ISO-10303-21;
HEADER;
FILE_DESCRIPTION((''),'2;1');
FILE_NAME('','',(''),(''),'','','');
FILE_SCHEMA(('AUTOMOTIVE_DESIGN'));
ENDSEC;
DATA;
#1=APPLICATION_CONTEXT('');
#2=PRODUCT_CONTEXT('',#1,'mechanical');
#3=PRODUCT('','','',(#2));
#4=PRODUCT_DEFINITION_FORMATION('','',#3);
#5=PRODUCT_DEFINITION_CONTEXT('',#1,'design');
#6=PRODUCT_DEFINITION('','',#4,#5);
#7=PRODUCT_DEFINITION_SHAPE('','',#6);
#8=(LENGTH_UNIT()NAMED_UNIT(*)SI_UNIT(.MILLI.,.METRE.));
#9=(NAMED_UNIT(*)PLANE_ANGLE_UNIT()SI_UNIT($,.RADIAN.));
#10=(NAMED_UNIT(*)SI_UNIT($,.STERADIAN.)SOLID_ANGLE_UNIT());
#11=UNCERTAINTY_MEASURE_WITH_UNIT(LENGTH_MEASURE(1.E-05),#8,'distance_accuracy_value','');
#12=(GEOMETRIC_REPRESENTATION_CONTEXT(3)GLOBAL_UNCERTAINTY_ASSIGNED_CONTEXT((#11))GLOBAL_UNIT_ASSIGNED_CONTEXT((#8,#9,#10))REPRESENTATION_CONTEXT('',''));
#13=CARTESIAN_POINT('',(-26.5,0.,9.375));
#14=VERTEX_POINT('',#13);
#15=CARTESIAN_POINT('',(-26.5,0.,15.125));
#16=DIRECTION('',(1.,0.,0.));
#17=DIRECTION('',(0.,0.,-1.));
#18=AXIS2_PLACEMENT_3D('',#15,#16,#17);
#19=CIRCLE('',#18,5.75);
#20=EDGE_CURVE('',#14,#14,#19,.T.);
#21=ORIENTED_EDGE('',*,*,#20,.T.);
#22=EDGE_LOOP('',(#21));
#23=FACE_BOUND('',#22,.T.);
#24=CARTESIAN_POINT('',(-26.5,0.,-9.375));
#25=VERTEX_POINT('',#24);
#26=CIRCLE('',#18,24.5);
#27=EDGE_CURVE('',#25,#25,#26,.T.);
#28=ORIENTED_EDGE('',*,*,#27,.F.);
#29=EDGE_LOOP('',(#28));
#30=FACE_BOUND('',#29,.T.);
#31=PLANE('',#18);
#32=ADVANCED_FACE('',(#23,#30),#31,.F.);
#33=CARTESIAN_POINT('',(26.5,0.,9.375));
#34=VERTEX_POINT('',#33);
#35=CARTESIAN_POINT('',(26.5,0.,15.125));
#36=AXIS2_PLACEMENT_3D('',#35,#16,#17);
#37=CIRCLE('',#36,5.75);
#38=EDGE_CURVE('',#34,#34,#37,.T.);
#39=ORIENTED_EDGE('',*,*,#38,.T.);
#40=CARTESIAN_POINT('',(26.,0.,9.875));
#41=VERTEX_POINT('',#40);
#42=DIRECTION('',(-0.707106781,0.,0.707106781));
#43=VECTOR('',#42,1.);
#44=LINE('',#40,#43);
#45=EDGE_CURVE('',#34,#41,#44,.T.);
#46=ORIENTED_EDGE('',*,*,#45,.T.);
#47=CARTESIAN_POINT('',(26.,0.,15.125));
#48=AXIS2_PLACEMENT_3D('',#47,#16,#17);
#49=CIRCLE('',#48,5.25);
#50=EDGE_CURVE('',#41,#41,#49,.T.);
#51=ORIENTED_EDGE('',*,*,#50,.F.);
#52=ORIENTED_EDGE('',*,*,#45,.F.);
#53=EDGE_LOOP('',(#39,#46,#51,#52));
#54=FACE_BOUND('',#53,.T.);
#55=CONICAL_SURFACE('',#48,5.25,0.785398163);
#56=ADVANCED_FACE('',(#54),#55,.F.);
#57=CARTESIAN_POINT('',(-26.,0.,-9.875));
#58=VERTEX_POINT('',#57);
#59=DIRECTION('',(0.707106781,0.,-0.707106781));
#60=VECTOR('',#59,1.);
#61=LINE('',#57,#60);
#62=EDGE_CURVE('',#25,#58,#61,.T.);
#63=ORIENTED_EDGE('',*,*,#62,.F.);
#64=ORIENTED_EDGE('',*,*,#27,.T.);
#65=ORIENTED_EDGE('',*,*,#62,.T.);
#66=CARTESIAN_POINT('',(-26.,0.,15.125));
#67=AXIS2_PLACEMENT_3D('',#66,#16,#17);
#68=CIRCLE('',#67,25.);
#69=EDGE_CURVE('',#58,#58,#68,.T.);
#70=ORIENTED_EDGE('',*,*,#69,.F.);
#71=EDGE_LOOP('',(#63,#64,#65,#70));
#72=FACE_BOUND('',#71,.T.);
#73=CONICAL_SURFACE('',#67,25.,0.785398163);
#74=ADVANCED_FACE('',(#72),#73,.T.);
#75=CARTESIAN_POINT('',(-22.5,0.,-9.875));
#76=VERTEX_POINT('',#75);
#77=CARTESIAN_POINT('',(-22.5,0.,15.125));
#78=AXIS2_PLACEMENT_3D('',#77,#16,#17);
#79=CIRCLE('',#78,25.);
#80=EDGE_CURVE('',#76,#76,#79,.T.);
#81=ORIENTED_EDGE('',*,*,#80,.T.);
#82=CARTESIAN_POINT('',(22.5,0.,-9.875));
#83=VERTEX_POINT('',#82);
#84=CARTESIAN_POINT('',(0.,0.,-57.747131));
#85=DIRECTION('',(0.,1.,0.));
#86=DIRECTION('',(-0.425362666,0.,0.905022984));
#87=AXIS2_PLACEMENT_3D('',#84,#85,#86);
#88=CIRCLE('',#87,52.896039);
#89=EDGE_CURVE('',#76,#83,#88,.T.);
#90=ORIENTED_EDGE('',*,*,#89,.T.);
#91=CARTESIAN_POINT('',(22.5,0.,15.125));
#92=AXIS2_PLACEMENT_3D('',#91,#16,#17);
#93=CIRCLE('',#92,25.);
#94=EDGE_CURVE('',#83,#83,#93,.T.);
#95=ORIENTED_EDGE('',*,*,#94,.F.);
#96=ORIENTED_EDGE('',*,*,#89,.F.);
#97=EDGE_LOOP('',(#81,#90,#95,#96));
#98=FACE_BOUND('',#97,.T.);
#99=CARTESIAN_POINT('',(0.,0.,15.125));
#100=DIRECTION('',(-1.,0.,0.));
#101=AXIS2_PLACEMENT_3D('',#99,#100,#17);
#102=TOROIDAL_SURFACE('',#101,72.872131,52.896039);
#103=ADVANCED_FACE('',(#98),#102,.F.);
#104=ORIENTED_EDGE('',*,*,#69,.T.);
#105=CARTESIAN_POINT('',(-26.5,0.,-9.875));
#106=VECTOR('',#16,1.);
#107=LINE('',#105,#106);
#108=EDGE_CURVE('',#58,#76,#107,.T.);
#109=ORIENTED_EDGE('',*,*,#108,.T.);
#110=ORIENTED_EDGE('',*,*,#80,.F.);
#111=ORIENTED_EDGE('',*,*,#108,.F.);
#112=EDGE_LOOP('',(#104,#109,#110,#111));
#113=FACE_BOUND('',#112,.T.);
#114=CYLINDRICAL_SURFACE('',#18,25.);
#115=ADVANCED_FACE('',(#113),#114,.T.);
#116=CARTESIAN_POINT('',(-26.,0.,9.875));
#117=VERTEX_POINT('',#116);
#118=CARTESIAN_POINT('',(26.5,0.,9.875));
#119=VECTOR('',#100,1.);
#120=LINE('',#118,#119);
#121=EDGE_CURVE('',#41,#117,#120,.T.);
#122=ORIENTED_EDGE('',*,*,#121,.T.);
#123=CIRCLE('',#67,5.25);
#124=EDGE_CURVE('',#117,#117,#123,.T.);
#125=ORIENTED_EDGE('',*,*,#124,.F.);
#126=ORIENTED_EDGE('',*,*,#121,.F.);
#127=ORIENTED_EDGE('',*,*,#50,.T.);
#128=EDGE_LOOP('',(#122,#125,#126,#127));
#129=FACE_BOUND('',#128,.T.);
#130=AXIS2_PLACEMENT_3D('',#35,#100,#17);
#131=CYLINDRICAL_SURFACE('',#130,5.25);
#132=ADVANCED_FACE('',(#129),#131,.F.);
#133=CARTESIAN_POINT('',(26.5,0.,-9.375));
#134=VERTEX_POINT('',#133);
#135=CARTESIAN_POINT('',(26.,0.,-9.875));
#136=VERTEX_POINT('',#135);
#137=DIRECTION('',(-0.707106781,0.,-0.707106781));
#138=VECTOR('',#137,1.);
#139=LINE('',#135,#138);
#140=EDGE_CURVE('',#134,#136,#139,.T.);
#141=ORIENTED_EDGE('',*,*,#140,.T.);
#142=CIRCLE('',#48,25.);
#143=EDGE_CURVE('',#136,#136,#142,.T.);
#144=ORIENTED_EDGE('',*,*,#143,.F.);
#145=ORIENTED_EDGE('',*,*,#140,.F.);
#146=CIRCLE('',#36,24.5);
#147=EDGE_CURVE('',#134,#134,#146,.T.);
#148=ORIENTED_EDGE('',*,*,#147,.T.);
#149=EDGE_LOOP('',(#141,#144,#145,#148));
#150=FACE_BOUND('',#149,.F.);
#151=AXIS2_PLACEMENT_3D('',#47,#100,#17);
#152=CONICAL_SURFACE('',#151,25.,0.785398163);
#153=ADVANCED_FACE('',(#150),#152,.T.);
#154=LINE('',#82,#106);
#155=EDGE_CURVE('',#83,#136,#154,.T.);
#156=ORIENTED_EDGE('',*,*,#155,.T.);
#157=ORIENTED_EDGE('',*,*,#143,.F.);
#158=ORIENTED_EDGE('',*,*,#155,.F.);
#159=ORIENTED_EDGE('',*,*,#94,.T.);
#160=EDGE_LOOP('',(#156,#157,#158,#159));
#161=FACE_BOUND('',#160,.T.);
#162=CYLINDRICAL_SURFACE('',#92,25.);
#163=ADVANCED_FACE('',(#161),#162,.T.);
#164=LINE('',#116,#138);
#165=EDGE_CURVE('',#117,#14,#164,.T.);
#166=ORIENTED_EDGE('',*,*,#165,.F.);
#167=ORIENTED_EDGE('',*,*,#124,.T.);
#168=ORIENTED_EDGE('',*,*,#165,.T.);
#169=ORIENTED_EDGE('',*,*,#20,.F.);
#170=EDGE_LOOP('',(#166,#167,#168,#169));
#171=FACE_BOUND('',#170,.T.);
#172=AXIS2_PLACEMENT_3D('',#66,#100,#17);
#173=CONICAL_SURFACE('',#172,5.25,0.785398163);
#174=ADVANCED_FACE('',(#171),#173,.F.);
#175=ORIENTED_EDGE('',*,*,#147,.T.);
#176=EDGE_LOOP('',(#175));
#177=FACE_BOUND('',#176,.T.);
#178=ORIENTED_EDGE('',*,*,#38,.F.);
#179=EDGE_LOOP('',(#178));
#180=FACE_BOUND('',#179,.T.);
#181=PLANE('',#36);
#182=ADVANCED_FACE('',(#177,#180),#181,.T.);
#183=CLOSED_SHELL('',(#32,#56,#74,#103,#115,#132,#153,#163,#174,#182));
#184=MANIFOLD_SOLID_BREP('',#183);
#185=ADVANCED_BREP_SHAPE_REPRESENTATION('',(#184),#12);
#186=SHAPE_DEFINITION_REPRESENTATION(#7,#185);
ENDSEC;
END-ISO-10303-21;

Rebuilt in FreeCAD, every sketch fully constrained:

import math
import FreeCAD as App
import Part
import Sketcher

V = App.Vector


def edges_at(feature, points):
    """Names of the edges that pass closest to the given points."""
    edges = feature.Shape.Edges
    near = lambda p: min(range(len(edges)), key=lambda i: edges[i].distToShape(Part.Vertex(*p))[0])
    return sorted({f"Edge{near(p) + 1}" for p in points})

doc = App.newDocument("Part")
body = doc.addObject("PartDesign::Body", "Body")

# Sketch on XZ plane
sketch1 = body.newObject("Sketcher::SketchObject", "Sketch")
sketch1.AttachmentSupport = (doc.getObject("XZ_Plane"), [""])
sketch1.MapMode = "FlatFace"
sketch1.addGeometry(Part.LineSegment(V(26.5, -9.9, 0), V(26.5, 9.9, 0)), False)
sketch1.addGeometry(Part.LineSegment(V(26.5, 9.9, 0), V(-26.5, 9.9, 0)), False)
sketch1.addGeometry(Part.LineSegment(V(-26.5, 9.9, 0), V(-26.5, -9.9, 0)), False)
sketch1.addGeometry(Part.LineSegment(V(-26.5, -9.9, 0), V(-22.5, -9.9, 0)), False)
sketch1.addGeometry(Part.ArcOfCircle(Part.Circle(V(0, -57.7, 0), V(0, 0, 1), 52.9), math.radians(65), math.radians(115)), False)
sketch1.addGeometry(Part.LineSegment(V(22.5, -9.9, 0), V(26.5, -9.9, 0)), False)
sketch1.addGeometry(Part.LineSegment(V(-26.5, 15.1, 0), V(26.5, 15.1, 0)), True)  # axis
sketch1.addConstraint(Sketcher.Constraint("Coincident", 0, 2, 1, 1))
sketch1.addConstraint(Sketcher.Constraint("Coincident", 1, 2, 2, 1))
sketch1.addConstraint(Sketcher.Constraint("Coincident", 2, 2, 3, 1))
sketch1.addConstraint(Sketcher.Constraint("Coincident", 3, 2, 4, 2))
sketch1.addConstraint(Sketcher.Constraint("Coincident", 4, 1, 5, 1))
sketch1.addConstraint(Sketcher.Constraint("Coincident", 5, 2, 0, 1))
sketch1.addConstraint(Sketcher.Constraint("Vertical", 0))
sketch1.addConstraint(Sketcher.Constraint("Horizontal", 1))
sketch1.addConstraint(Sketcher.Constraint("Vertical", 2))
sketch1.addConstraint(Sketcher.Constraint("Horizontal", 3))
sketch1.addConstraint(Sketcher.Constraint("Horizontal", 5))
sketch1.addConstraint(Sketcher.Constraint("Horizontal", 6))
sketch1.addConstraint(Sketcher.Constraint("Symmetric", 0, 2, 2, 2, -1, 1))
sketch1.addConstraint(Sketcher.Constraint("Symmetric", 3, 2, 4, 1, -2))
sketch1.addConstraint(Sketcher.Constraint("Vertical", 2, 2, 6, 1))
sketch1.addConstraint(Sketcher.Constraint("Vertical", 5, 2, 6, 2))
sketch1.addConstraint(Sketcher.Constraint("DistanceX", 1, 2, 1, 1, 53.0))
sketch1.addConstraint(Sketcher.Constraint("DistanceX", 3, 1, 3, 2, 4.0))
sketch1.addConstraint(Sketcher.Constraint("DistanceY", 2, 2, 6, 1, 25.0))
sketch1.addConstraint(Sketcher.Constraint("DistanceY", 0, 1, 0, 2, 19.75))
sketch1.addConstraint(Sketcher.Constraint("Radius", 4, 52.896039))
revolution = body.newObject("PartDesign::Revolution", "Revolution")
revolution.Profile = sketch1
revolution.ReferenceAxis = (sketch1, ["Axis0"])
revolution.Angle = 360
doc.recompute()

chamfer = body.newObject("PartDesign::Chamfer", "Chamfer")
chamfer.Base = (revolution, edges_at(revolution, [(26.5, 0, 40.125), (-26.5, 0, 40.125)]))
chamfer.Size = 0.5
doc.recompute()

chamfer2 = body.newObject("PartDesign::Chamfer", "Chamfer001")
chamfer2.Base = (chamfer, edges_at(chamfer, [(26.5, 0, 20.375), (-26.5, 0, 20.375)]))
chamfer2.ChamferType = "Two distances"
chamfer2.Size = 0.5
chamfer2.Size2 = 0.5

doc.recompute()
